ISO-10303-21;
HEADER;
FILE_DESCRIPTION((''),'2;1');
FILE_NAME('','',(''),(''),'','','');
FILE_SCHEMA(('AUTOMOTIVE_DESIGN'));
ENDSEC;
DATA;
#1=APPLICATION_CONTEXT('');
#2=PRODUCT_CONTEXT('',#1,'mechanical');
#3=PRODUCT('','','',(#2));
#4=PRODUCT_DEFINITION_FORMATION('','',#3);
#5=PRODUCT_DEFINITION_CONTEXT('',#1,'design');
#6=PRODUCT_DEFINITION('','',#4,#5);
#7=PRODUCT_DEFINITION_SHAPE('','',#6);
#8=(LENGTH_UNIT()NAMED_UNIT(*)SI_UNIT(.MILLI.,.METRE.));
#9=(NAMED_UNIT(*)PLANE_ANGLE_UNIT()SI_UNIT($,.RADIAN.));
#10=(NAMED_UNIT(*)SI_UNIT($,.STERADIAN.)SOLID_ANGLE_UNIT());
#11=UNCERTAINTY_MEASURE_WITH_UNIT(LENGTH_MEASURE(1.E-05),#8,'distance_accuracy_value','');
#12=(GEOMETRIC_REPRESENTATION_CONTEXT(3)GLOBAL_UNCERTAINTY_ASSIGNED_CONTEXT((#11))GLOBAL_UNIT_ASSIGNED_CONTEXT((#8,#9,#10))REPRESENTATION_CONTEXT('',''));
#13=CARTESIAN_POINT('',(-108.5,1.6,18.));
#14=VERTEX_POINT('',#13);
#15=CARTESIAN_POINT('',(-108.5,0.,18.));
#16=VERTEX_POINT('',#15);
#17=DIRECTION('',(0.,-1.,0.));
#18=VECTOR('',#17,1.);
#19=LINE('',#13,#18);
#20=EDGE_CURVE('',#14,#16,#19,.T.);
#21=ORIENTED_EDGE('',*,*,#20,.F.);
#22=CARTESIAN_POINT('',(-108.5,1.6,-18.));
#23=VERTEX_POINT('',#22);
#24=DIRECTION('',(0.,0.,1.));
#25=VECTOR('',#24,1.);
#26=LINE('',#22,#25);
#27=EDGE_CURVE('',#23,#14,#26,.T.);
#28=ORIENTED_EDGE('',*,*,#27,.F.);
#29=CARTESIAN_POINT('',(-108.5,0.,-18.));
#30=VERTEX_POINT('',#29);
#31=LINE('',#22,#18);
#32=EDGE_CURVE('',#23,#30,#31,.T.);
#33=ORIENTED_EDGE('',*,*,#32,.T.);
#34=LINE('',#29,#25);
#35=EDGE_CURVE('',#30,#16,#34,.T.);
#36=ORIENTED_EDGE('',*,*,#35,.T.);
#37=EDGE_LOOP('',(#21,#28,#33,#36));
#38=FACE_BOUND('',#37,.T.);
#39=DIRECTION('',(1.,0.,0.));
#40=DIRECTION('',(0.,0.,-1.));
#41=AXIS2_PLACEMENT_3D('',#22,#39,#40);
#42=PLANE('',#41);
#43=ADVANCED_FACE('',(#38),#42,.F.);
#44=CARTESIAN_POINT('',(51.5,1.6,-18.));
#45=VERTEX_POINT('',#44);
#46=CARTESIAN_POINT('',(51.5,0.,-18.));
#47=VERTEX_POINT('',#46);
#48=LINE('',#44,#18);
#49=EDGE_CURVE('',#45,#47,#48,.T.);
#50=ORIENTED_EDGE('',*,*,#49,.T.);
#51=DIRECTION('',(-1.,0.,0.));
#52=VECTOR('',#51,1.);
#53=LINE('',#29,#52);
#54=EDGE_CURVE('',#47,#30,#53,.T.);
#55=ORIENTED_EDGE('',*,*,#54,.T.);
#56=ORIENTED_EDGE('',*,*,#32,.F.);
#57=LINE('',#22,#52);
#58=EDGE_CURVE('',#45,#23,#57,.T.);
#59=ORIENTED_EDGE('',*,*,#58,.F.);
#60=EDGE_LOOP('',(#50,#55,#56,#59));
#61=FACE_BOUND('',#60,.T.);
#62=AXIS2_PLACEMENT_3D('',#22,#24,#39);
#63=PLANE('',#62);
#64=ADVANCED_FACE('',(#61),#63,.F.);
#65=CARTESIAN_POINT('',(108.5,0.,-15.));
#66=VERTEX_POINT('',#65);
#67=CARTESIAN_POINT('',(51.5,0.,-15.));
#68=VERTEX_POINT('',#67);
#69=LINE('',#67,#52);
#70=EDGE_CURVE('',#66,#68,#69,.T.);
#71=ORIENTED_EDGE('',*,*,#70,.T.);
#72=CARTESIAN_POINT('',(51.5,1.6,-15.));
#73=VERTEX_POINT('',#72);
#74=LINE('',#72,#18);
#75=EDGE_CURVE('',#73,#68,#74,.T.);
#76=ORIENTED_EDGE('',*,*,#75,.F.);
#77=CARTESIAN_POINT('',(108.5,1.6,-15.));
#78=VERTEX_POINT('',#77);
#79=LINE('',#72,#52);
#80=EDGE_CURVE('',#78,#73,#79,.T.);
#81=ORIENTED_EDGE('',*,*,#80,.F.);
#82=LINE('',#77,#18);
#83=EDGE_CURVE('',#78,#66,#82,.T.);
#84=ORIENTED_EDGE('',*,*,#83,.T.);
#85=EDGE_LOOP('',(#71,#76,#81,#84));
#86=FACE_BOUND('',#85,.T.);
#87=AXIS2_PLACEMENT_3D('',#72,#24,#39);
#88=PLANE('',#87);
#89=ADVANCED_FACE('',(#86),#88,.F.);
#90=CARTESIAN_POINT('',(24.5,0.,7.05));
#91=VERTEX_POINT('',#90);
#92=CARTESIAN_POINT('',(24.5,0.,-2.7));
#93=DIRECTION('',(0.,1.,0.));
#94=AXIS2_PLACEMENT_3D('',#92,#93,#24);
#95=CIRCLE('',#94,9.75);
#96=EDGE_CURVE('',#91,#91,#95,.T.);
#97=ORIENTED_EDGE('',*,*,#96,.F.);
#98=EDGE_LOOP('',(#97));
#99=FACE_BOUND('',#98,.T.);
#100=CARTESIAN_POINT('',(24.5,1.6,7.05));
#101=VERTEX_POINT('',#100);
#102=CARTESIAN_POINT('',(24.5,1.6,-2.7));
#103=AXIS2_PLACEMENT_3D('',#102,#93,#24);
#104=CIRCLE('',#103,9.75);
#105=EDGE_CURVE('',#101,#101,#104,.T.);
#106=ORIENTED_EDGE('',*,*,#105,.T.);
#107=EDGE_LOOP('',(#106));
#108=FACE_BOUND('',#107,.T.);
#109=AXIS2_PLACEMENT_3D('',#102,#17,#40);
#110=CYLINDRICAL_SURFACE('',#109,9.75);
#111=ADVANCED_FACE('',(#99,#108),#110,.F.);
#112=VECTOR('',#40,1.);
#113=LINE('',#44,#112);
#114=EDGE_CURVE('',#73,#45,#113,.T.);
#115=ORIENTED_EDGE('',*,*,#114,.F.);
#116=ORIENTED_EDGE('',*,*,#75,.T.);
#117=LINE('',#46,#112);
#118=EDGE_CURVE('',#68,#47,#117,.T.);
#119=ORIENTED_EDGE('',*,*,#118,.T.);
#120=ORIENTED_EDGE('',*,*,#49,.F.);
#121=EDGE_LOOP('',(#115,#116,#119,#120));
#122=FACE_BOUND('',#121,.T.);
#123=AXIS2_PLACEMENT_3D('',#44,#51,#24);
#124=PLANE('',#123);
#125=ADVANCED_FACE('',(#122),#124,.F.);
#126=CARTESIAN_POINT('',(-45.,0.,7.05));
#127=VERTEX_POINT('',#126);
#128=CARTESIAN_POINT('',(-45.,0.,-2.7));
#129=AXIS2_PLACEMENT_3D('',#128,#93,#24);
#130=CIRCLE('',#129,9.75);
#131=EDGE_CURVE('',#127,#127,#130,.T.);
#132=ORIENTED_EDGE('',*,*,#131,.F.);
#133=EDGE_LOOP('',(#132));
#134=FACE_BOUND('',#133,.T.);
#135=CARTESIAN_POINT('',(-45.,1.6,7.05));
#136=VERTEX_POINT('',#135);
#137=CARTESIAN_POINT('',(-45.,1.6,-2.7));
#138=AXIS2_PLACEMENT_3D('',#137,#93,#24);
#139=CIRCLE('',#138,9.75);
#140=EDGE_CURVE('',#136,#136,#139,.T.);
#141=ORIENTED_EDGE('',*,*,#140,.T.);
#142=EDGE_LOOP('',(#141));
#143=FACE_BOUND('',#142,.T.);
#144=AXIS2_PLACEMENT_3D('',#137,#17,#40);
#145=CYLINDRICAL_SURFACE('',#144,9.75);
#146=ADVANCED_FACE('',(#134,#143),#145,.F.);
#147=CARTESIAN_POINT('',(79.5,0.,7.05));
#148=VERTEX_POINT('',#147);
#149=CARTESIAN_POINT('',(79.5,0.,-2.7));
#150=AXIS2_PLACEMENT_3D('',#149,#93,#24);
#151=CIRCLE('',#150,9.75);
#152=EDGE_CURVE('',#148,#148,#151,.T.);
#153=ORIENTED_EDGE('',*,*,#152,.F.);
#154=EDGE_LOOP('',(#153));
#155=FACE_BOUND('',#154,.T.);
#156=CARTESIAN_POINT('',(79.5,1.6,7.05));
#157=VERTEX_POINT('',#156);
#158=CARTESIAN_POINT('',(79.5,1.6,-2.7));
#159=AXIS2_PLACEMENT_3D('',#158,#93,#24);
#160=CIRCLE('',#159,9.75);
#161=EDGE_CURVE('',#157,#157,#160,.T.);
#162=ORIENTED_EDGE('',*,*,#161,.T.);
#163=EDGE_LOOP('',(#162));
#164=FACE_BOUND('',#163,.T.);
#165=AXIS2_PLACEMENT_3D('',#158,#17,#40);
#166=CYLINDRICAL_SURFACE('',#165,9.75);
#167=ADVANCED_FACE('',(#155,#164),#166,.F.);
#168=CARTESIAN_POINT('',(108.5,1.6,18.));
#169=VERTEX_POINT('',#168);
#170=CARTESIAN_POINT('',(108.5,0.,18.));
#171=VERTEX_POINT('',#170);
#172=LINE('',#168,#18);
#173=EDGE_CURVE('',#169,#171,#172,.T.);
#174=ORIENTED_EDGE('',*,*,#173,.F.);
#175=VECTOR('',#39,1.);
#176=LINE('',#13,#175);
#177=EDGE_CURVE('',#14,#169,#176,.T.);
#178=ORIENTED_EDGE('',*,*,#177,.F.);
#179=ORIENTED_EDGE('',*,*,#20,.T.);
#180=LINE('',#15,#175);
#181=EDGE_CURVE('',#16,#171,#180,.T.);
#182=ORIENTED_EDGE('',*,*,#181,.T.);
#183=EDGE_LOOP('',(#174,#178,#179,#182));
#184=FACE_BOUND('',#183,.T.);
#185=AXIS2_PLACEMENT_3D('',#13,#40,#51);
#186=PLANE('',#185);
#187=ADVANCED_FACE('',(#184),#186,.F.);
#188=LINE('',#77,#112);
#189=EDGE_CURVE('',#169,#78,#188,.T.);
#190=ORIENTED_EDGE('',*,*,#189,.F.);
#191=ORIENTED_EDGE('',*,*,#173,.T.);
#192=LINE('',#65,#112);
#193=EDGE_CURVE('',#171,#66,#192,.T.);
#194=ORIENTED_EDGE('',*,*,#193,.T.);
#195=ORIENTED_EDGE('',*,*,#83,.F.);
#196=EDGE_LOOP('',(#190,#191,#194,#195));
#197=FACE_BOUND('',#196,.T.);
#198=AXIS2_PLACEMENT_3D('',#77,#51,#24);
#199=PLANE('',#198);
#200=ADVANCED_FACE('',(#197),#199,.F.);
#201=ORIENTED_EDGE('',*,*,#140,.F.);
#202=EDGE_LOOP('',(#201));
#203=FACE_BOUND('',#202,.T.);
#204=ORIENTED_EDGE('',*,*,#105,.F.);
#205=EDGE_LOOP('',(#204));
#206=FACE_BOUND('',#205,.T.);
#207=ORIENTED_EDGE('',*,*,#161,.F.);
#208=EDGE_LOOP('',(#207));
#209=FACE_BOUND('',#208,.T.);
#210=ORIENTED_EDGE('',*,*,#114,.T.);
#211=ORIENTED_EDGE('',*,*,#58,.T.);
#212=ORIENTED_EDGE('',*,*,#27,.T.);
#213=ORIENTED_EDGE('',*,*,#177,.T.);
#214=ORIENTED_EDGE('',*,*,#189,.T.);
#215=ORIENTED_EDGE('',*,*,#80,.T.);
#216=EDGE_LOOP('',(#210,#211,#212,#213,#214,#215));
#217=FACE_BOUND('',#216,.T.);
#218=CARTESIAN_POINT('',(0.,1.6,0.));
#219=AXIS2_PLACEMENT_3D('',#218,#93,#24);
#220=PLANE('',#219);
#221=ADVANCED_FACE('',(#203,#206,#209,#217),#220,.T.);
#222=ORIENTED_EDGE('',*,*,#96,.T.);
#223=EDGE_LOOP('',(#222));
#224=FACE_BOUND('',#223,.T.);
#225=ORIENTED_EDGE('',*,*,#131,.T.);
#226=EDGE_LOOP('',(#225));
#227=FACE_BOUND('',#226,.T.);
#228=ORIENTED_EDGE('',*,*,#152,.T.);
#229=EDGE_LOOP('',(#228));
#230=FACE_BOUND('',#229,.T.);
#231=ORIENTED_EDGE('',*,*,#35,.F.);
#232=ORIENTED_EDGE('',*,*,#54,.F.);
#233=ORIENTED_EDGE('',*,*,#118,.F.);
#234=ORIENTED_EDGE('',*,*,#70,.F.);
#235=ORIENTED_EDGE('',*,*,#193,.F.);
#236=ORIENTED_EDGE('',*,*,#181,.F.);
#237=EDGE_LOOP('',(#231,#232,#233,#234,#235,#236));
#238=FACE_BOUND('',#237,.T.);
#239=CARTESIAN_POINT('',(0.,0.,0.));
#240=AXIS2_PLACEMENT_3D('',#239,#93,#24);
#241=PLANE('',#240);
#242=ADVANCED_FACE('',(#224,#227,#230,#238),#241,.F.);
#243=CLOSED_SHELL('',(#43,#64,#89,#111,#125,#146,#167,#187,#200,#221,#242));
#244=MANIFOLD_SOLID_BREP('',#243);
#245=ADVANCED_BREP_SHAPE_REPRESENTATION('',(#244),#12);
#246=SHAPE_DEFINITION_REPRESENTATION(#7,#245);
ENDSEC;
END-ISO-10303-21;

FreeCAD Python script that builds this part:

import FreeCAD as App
import Part
import Sketcher
from FreeCAD import Vector
Q = App.Units.Quantity

doc = App.newDocument("Part")
params = doc.addObject("Spreadsheet::Sheet", "Params")
for row, (alias, value) in enumerate([
    ("sketch1_diameter", "19.5 mm"),
    ("sketch1_width", "160 mm"),
    ("sketch1_width2", "217 mm"),
    ("sketch1_height", "36 mm"),
    ("sketch1_height2", "33 mm"),
    ("pad1_length", "1.6 mm"),
], start=1):
    params.set(f"A{row}", alias)
    params.set(f"B{row}", "=" + value)
    params.setAlias(f"B{row}", alias)

body = doc.addObject("PartDesign::Body", "Body")

# Sketch on XZ plane
sketch1 = doc.addObject("Sketcher::SketchObject", "Sketch")
body.addObject(sketch1)
sketch1.AttachmentSupport = (doc.XZ_Plane, [""])
sketch1.MapMode = "FlatFace"
sketch1.addGeometry(Part.LineSegment(Vector(51.5, -18, 0), Vector(-108.5, -18, 0)), False)
sketch1.addGeometry(Part.LineSegment(Vector(-108.5, -18, 0), Vector(-108.5, 18, 0)), False)
sketch1.addGeometry(Part.LineSegment(Vector(-108.5, 18, 0), Vector(108.5, 18, 0)), False)
sketch1.addGeometry(Part.LineSegment(Vector(108.5, 18, 0), Vector(108.5, -15, 0)), False)
sketch1.addGeometry(Part.LineSegment(Vector(108.5, -15, 0), Vector(51.5, -15, 0)), False)
sketch1.addGeometry(Part.LineSegment(Vector(51.5, -15, 0), Vector(51.5, -18, 0)), False)
sketch1.addGeometry(Part.Circle(Vector(79.5, -2.7, 0), Vector(0, 0, 1), 9.8), False)
sketch1.addGeometry(Part.Circle(Vector(24.5, -2.7, 0), Vector(0, 0, 1), 9.8), False)
sketch1.addGeometry(Part.Circle(Vector(-45, -2.7, 0), Vector(0, 0, 1), 9.8), False)
sketch1.addConstraint(Sketcher.Constraint("Coincident", 0, 2, 1, 1))
sketch1.addConstraint(Sketcher.Constraint("Coincident", 1, 2, 2, 1))
sketch1.addConstraint(Sketcher.Constraint("Coincident", 2, 2, 3, 1))
sketch1.addConstraint(Sketcher.Constraint("Coincident", 3, 2, 4, 1))
sketch1.addConstraint(Sketcher.Constraint("Coincident", 4, 2, 5, 1))
sketch1.addConstraint(Sketcher.Constraint("Coincident", 5, 2, 0, 1))
sketch1.addConstraint(Sketcher.Constraint("Horizontal", 0))
sketch1.addConstraint(Sketcher.Constraint("Vertical", 1))
sketch1.addConstraint(Sketcher.Constraint("Horizontal", 2))
sketch1.addConstraint(Sketcher.Constraint("Vertical", 3))
sketch1.addConstraint(Sketcher.Constraint("Horizontal", 4))
sketch1.addConstraint(Sketcher.Constraint("Vertical", 5))
sketch1.addConstraint(Sketcher.Constraint("Equal", 6, 7))
sketch1.addConstraint(Sketcher.Constraint("Equal", 7, 8))
sketch1.addConstraint(Sketcher.Constraint("Symmetric", 0, 2, 2, 2, -1, 1))
sketch1.addConstraint(Sketcher.Constraint("Horizontal", 6, 3, 7, 3))
sketch1.addConstraint(Sketcher.Constraint("Horizontal", 7, 3, 8, 3))
sketch1.addConstraint(Sketcher.Constraint("Diameter", 6, Q("19.5 mm")))
sketch1.addConstraint(Sketcher.Constraint("DistanceX", 0, 2, 0, 1, Q("160 mm")))
sketch1.addConstraint(Sketcher.Constraint("DistanceX", 2, 1, 2, 2, Q("217 mm")))
sketch1.addConstraint(Sketcher.Constraint("DistanceY", 1, 1, 1, 2, Q("36 mm")))
sketch1.addConstraint(Sketcher.Constraint("DistanceY", 3, 2, 3, 1, Q("33 mm")))
sketch1.addConstraint(Sketcher.Constraint("DistanceX", 8, 3, -1, 1, Q("45 mm")))
sketch1.addConstraint(Sketcher.Constraint("DistanceX", 7, 3, 6, 3, Q("55 mm")))
sketch1.addConstraint(Sketcher.Constraint("DistanceX", 0, 2, 7, 3, Q("133 mm")))
sketch1.addConstraint(Sketcher.Constraint("DistanceY", 6, 3, -1, 1, Q("2.7 mm")))
sketch1.setExpression("Constraints[17]", "Params.sketch1_diameter")
sketch1.setExpression("Constraints[18]", "Params.sketch1_width")
sketch1.setExpression("Constraints[19]", "Params.sketch1_width2")
sketch1.setExpression("Constraints[20]", "Params.sketch1_height")
sketch1.setExpression("Constraints[21]", "Params.sketch1_height2")
pad1 = doc.addObject("PartDesign::Pad", "Pad")
body.addObject(pad1)
pad1.Profile = sketch1
pad1.setExpression("Length", "Params.pad1_length")
pad1.Reversed = True

doc.recompute()
